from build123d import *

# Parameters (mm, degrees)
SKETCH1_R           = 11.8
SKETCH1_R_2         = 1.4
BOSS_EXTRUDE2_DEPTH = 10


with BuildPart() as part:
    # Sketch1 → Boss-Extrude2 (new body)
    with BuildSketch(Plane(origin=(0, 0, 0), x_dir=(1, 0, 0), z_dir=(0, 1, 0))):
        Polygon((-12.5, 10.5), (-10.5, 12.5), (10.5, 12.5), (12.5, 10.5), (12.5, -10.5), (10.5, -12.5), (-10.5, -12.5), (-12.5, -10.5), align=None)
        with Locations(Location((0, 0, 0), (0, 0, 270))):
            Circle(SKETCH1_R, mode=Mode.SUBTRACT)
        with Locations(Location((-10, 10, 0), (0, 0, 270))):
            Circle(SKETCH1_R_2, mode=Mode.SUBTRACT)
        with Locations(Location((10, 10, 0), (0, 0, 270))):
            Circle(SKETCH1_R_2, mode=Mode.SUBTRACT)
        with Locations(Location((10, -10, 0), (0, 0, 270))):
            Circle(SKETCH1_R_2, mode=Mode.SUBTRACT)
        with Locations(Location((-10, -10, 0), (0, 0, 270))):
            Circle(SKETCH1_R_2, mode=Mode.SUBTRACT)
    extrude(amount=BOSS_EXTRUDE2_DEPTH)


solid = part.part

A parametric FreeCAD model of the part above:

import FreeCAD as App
import Part
import Sketcher


def add_polygon(sketch, points):
    """Adds a closed chain of lines whose ends are joined by coincident constraints."""
    first, n = sketch.GeometryCount, len(points)
    for a, b in zip(points, points[1:] + points[:1]):
        sketch.addGeometry(Part.LineSegment(App.Vector(*a, 0), App.Vector(*b, 0)), False)
    for i in range(n):
        sketch.addConstraint(Sketcher.Constraint("Coincident", first + i, 2, first + (i + 1) % n, 1))

doc = App.newDocument("Part")
params = doc.addObject("Spreadsheet::Sheet", "Params")
for row, (alias, value) in enumerate([
    ("sketch1_diameter", "2.8 mm"),
    ("sketch1_diameter2", "23.6 mm"),
    ("sketch1_width", "21 mm"),
    ("pad1_length", "10 mm"),
], start=1):
    params.set(f"A{row}", alias)
    params.set(f"B{row}", "=" + value)
    params.setAlias(f"B{row}", alias)

body = doc.addObject("PartDesign::Body", "Body")

# Sketch on XZ plane
sketch1 = body.newObject("Sketcher::SketchObject", "Sketch")
sketch1.AttachmentSupport = (doc.getObject("XZ_Plane"), [""])
sketch1.MapMode = "FlatFace"
add_polygon(sketch1, [(-10.5, -12.5), (-12.5, -10.5), (-12.5, 10.5), (-10.5, 12.5), (10.5, 12.5), (12.5, 10.5), (12.5, -10.5), (10.5, -12.5)])  # lines 0-7
sketch1.addGeometry(Part.Circle(App.Vector(10, 10, 0), App.Vector(0, 0, 1), 1.4), False)  # 8
sketch1.addGeometry(Part.Circle(App.Vector(-10, 10, 0), App.Vector(0, 0, 1), 1.4), False)  # 9
sketch1.addGeometry(Part.Circle(App.Vector(10, -10, 0), App.Vector(0, 0, 1), 1.4), False)  # 10
sketch1.addGeometry(Part.Circle(App.Vector(0, 0, 0), App.Vector(0, 0, 1), 11.8), False)  # 11
sketch1.addGeometry(Part.Circle(App.Vector(-10, -10, 0), App.Vector(0, 0, 1), 1.4), False)  # 12
sketch1.addConstraint([
    Sketcher.Constraint("Vertical", 1),
    Sketcher.Constraint("Horizontal", 3),
    Sketcher.Constraint("Vertical", 5),
    Sketcher.Constraint("Horizontal", 7),
    Sketcher.Constraint("Coincident", 11, 3, -1, 1),
    Sketcher.Constraint("Equal", 8, 9),
    Sketcher.Constraint("Equal", 9, 10),
    Sketcher.Constraint("Equal", 10, 12),
    Sketcher.Constraint("Symmetric", 9, 3, 10, 3, -1, 1),
    Sketcher.Constraint("Symmetric", 8, 3, 12, 3, -1, 1),
    Sketcher.Constraint("Symmetric", 0, 2, 4, 2, -1, 1),
    Sketcher.Constraint("Symmetric", 2, 2, 6, 2, -1, 1),
    Sketcher.Constraint("Symmetric", 8, 3, 9, 3, -2),
    Sketcher.Constraint("Perpendicular", 0, 2),
    Sketcher.Constraint("Perpendicular", 2, 4),
    Sketcher.Constraint("Perpendicular", 4, 6),
    Sketcher.Constraint("Horizontal", 1, 2, 4, 2),
    Sketcher.Constraint("Vertical", 3, 2, 6, 2),
    Sketcher.Constraint("Equal", 7, 1),
    Sketcher.Constraint("Diameter", 8, 2.8),
    Sketcher.Constraint("Diameter", 11, 23.6),
    Sketcher.Constraint("DistanceX", 3, 1, 3, 2, 21.0),
    Sketcher.Constraint("DistanceX", -1, 1, 8, 3, 10.0),
    Sketcher.Constraint("DistanceY", -1, 1, 8, 3, 10.0),
    Sketcher.Constraint("DistanceX", 1, 2, 2, 2, 2.0),
])
sketch1.setExpression("Constraints[27]", "Params.sketch1_diameter")
sketch1.setExpression("Constraints[28]", "Params.sketch1_diameter2")
sketch1.setExpression("Constraints[29]", "Params.sketch1_width")
pad1 = body.newObject("PartDesign::Pad", "Pad")
pad1.Profile = sketch1
pad1.setExpression("Length", "Params.pad1_length")
pad1.Reversed = True

doc.recompute()
